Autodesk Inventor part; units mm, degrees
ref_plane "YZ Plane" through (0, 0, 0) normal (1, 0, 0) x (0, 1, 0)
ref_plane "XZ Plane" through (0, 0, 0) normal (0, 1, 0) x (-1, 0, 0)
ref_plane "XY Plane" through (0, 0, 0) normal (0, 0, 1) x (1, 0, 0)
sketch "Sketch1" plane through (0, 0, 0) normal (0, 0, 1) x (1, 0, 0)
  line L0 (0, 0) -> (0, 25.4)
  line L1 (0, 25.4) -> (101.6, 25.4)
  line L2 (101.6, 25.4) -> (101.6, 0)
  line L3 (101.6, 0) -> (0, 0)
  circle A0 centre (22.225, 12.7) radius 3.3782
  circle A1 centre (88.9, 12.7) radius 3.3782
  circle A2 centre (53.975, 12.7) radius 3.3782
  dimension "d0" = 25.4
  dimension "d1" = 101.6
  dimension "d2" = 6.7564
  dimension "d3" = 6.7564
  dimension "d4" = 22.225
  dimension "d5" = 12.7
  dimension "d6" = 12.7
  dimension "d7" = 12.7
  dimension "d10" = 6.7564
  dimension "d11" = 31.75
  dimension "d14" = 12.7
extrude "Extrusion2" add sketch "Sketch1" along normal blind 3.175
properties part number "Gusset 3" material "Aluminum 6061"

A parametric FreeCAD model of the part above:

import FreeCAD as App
import Part
import Sketcher
from FreeCAD import Vector
Q = App.Units.Quantity

doc = App.newDocument("Part")
body = doc.addObject("PartDesign::Body", "Body")

# Sketch on XY plane
sketch1 = body.newObject("Sketcher::SketchObject", "Sketch")
sketch1.AttachmentSupport = (doc.getObject("XY_Plane"), [""])
sketch1.MapMode = "FlatFace"
sketch1.addGeometry([
    Part.LineSegment(Vector(0, 25.4, 0), Vector(0, 0, 0)),  # 0
    Part.LineSegment(Vector(0, 0, 0), Vector(101.6, 0, 0)),  # 1
    Part.LineSegment(Vector(101.6, 0, 0), Vector(101.6, 25.4, 0)),  # 2
    Part.LineSegment(Vector(101.6, 25.4, 0), Vector(0, 25.4, 0)),  # 3
    Part.Circle(Vector(22.2, 12.7, 0), Vector(0, 0, 1), 3.4),  # 4
    Part.Circle(Vector(54, 12.7, 0), Vector(0, 0, 1), 3.4),  # 5
    Part.Circle(Vector(88.9, 12.7, 0), Vector(0, 0, 1), 3.4),  # 6
], False)
sketch1.addConstraint([
    Sketcher.Constraint("Coincident", 0, 2, 1, 1),
    Sketcher.Constraint("Coincident", 1, 2, 2, 1),
    Sketcher.Constraint("Coincident", 2, 2, 3, 1),
    Sketcher.Constraint("Coincident", 3, 2, 0, 1),
    Sketcher.Constraint("Vertical", 0),
    Sketcher.Constraint("Horizontal", 1),
    Sketcher.Constraint("Vertical", 2),
    Sketcher.Constraint("Horizontal", 3),
    Sketcher.Constraint("Coincident", 0, 2, -1, 1),
    Sketcher.Constraint("Equal", 4, 5),
    Sketcher.Constraint("Equal", 5, 6),
    Sketcher.Constraint("Horizontal", 4, 3, 5, 3),
    Sketcher.Constraint("Horizontal", 5, 3, 6, 3),
    Sketcher.Constraint("DistanceX", 1, 1, 1, 2, Q("4 in")),
    Sketcher.Constraint("DistanceY", 0, 2, 0, 1, Q("1 in")),
    Sketcher.Constraint("Diameter", 4, Q("0.266 in")),
    Sketcher.Constraint("DistanceY", -1, 1, 4, 3, Q("0.5 in")),
    Sketcher.Constraint("DistanceX", 6, 3, 1, 2, Q("0.5 in")),
    Sketcher.Constraint("DistanceX", 4, 3, 5, 3, Q("1.25 in")),
    Sketcher.Constraint("DistanceX", -1, 1, 4, 3, Q("0.875 in")),
])
pad1 = body.newObject("PartDesign::Pad", "Pad")
pad1.Profile = sketch1
pad1.Length = Q("0.125 in")

doc.recompute()
